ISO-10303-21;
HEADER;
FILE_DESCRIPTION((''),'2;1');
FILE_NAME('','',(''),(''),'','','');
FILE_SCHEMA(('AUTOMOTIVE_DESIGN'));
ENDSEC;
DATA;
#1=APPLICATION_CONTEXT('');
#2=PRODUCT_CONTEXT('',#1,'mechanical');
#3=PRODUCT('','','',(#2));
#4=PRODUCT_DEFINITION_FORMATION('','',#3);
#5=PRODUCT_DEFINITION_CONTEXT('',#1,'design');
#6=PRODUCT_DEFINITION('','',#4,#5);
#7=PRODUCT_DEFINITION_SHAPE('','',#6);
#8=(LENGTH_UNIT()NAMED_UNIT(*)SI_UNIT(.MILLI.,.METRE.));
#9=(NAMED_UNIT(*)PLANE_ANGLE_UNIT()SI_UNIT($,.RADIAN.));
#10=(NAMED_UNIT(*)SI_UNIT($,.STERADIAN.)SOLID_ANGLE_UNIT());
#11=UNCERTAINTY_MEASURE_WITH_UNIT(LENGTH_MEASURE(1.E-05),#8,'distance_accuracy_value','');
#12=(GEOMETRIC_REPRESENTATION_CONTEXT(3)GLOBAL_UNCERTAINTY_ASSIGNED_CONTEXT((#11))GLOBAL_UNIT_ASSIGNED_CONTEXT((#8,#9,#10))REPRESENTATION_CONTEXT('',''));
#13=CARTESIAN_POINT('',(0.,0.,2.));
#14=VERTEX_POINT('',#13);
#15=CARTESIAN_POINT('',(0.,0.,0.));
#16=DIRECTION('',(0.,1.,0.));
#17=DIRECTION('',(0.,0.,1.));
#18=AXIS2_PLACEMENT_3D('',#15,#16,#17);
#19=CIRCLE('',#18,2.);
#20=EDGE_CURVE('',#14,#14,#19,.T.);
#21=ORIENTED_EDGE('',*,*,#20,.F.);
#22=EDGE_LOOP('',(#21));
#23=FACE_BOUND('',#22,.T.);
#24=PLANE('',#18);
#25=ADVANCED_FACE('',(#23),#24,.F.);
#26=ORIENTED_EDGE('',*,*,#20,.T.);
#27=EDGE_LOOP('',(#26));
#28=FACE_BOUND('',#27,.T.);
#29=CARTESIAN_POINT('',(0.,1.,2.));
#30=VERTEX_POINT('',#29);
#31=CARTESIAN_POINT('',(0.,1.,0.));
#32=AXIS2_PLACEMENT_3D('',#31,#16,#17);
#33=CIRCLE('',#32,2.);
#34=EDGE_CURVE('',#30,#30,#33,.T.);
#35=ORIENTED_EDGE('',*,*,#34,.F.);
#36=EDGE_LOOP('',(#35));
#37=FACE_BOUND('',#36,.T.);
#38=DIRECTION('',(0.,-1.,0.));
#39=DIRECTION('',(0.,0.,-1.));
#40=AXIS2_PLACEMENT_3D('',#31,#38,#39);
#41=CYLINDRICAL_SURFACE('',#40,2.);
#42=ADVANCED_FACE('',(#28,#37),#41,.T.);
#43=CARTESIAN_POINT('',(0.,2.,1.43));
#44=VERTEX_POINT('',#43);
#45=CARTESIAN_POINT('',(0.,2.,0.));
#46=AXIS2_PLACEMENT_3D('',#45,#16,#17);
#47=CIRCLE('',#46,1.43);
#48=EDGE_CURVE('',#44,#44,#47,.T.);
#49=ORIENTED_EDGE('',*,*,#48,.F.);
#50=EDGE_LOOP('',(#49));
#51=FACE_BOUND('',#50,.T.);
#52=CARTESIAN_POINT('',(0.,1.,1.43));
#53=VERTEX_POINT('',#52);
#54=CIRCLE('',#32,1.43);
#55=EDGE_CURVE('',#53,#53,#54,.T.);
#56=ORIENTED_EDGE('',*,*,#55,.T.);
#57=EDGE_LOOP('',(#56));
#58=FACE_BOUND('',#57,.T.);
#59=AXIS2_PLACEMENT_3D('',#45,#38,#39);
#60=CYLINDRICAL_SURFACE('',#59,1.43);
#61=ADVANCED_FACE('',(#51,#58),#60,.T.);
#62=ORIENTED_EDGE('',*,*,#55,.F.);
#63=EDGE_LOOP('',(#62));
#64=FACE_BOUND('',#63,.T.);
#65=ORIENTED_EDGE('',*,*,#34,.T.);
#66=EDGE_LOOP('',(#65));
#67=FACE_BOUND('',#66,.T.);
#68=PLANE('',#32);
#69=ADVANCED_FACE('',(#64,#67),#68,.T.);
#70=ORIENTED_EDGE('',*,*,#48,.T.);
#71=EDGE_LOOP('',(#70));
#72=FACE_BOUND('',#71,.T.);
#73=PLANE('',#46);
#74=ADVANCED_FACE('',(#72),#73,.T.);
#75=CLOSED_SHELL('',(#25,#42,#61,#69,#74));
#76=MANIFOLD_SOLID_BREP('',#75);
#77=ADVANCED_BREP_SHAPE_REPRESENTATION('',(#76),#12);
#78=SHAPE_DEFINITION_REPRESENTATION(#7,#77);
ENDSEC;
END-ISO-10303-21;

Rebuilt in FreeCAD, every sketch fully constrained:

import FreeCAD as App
import Part
import Sketcher

doc = App.newDocument("Part")
body = doc.addObject("PartDesign::Body", "Body")

# Sketch on XZ plane
sketch1 = doc.addObject("Sketcher::SketchObject", "Sketch")
body.addObject(sketch1)
sketch1.AttachmentSupport = (doc.XZ_Plane, [""])
sketch1.MapMode = "FlatFace"
sketch1.addGeometry(Part.Circle(App.Vector(0, 0, 0), App.Vector(0, 0, 1), 2), False)
sketch1.addConstraint([
    Sketcher.Constraint("Coincident", 0, 3, -1, 1),
    Sketcher.Constraint("Diameter", 0, 4.0),
])
pad1 = doc.addObject("PartDesign::Pad", "Pad")
body.addObject(pad1)
pad1.Profile = sketch1
pad1.Length = 1
pad1.Reversed = True

# Sketch on XZ plane
sketch2 = doc.addObject("Sketcher::SketchObject", "Sketch001")
body.addObject(sketch2)
sketch2.AttachmentSupport = (doc.XZ_Plane, [""])
sketch2.MapMode = "FlatFace"
sketch2.AttachmentOffset = App.Placement(App.Vector(0, 0, -1), App.Rotation())
sketch2.addGeometry(Part.Circle(App.Vector(0, 0, 0), App.Vector(0, 0, 1), 1.4), False)
sketch2.addConstraint([
    Sketcher.Constraint("Coincident", 0, 3, -1, 1),
    Sketcher.Constraint("Diameter", 0, 2.86),
])
pad2 = doc.addObject("PartDesign::Pad", "Pad001")
body.addObject(pad2)
pad2.Profile = sketch2
pad2.Length = 1
pad2.Reversed = True

doc.recompute()
